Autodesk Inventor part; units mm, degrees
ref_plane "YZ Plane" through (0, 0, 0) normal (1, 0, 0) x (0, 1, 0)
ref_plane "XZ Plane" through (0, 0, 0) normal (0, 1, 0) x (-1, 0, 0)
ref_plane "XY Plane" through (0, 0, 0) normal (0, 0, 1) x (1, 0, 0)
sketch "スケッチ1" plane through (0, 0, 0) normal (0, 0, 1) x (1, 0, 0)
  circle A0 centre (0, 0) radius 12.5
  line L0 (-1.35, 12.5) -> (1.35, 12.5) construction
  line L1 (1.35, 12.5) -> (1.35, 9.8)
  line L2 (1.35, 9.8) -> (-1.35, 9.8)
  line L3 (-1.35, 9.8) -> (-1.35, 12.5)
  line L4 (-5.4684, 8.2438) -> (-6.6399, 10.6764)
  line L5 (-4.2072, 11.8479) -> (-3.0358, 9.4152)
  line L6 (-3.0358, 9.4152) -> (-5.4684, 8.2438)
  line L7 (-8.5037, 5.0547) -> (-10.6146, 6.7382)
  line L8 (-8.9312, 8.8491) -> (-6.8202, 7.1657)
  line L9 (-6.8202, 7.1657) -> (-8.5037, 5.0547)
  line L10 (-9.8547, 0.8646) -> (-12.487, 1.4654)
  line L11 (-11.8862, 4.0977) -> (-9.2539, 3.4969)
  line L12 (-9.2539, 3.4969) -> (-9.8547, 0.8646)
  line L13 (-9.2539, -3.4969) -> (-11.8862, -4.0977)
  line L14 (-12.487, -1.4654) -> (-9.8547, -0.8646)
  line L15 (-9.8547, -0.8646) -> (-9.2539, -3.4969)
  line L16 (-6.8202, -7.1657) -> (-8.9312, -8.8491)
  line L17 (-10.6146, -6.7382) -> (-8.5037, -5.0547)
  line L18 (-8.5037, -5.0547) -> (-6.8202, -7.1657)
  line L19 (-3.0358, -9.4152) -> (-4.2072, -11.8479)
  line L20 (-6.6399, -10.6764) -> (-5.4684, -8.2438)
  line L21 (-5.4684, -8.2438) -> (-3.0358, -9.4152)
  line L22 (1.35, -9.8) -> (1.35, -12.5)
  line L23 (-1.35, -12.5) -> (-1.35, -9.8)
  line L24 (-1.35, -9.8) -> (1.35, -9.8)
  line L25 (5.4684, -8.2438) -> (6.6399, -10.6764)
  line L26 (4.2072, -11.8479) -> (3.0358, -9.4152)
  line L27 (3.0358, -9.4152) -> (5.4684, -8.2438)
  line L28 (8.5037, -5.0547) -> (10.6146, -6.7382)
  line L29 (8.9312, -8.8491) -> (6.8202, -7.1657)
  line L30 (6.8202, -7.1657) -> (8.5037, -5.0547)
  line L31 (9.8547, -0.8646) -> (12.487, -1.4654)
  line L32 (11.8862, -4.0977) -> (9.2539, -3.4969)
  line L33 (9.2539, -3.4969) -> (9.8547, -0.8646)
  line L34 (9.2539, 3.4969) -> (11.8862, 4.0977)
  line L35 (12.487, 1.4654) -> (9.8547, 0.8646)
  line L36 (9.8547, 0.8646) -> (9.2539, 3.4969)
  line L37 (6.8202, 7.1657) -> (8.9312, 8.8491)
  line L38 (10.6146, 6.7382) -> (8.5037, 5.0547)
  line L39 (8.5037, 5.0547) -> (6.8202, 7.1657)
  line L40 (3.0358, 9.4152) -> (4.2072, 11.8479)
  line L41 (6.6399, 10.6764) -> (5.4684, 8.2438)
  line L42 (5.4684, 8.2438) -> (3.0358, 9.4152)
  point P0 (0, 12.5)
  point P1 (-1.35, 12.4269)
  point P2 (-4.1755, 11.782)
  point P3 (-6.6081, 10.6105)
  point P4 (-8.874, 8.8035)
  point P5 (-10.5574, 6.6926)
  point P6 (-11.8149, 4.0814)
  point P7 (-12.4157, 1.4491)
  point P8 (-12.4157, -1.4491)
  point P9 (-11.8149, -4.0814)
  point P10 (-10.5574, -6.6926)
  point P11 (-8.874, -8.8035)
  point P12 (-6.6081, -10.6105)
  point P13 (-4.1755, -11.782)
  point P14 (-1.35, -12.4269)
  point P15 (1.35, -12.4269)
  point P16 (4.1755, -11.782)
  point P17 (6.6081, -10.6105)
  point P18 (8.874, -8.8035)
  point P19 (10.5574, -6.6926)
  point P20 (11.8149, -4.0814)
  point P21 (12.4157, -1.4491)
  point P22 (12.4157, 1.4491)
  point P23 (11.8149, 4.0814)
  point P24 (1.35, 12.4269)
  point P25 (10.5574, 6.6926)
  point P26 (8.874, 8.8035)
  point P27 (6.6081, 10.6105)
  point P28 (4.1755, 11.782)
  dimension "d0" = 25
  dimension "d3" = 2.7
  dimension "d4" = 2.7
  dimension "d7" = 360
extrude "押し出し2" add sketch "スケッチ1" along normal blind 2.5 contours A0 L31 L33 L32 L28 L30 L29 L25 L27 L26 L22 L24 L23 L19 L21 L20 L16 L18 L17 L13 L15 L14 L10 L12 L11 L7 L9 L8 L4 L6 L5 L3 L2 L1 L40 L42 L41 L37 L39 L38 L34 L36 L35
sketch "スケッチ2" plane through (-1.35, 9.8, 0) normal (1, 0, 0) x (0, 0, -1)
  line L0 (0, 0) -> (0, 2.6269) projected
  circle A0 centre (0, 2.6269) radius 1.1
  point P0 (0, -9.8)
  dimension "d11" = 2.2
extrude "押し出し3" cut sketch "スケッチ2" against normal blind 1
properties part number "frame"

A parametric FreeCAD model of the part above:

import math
import FreeCAD as App
import Part
import Sketcher

V = App.Vector
Q = App.Units.Quantity

doc = App.newDocument("Part")
body = doc.addObject("PartDesign::Body", "Body")

# Sketch on XY plane
sketch1 = doc.addObject("Sketcher::SketchObject", "Sketch")
body.addObject(sketch1)
sketch1.AttachmentSupport = (doc.XY_Plane, [""])
sketch1.MapMode = "FlatFace"
sketch1.addGeometry([
    Part.ArcOfCircle(Part.Circle(V(0, 0, 0), V(0, 0, 1), 12.5), math.radians(-6.66), math.radians(6.66)),  # 0
    Part.LineSegment(V(12.4, 1.4, 0), V(9.9, 0.9, 0)),  # 1
    Part.LineSegment(V(9.9, 0.9, 0), V(9.3, 3.5, 0)),  # 2
    Part.LineSegment(V(9.3, 3.5, 0), V(11.8, 4.1, 0)),  # 3
    Part.ArcOfCircle(Part.Circle(V(0, 0, 0), V(0, 0, 1), 12.5), math.radians(19.06), math.radians(32.37)),  # 4
    Part.LineSegment(V(10.6, 6.7, 0), V(8.5, 5.1, 0)),  # 5
    Part.LineSegment(V(8.5, 5.1, 0), V(6.8, 7.2, 0)),  # 6
    Part.LineSegment(V(6.8, 7.2, 0), V(8.9, 8.8, 0)),  # 7
    Part.ArcOfCircle(Part.Circle(V(0, 0, 0), V(0, 0, 1), 12.5), math.radians(44.77), math.radians(58.09)),  # 8
    Part.LineSegment(V(6.6, 10.6, 0), V(5.5, 8.2, 0)),  # 9
    Part.LineSegment(V(5.5, 8.2, 0), V(3, 9.4, 0)),  # 10
    Part.LineSegment(V(3, 9.4, 0), V(4.2, 11.8, 0)),  # 11
    Part.ArcOfCircle(Part.Circle(V(0, 0, 0), V(0, 0, 1), 12.5), math.radians(70.49), math.radians(83.8)),  # 12
    Part.LineSegment(V(1.4, 12.4, 0), V(1.4, 9.8, 0)),  # 13
    Part.LineSegment(V(1.4, 9.8, 0), V(-1.4, 9.8, 0)),  # 14
    Part.LineSegment(V(-1.4, 9.8, 0), V(-1.4, 12.4, 0)),  # 15
    Part.ArcOfCircle(Part.Circle(V(0, 0, 0), V(0, 0, 1), 12.5), math.radians(96.2), math.radians(109.51)),  # 16
    Part.LineSegment(V(-4.2, 11.8, 0), V(-3, 9.4, 0)),  # 17
    Part.LineSegment(V(-3, 9.4, 0), V(-5.5, 8.2, 0)),  # 18
    Part.LineSegment(V(-5.5, 8.2, 0), V(-6.6, 10.6, 0)),  # 19
    Part.ArcOfCircle(Part.Circle(V(0, 0, 0), V(0, 0, 1), 12.5), math.radians(121.91), math.radians(135.23)),  # 20
    Part.LineSegment(V(-8.9, 8.8, 0), V(-6.8, 7.2, 0)),  # 21
    Part.LineSegment(V(-6.8, 7.2, 0), V(-8.5, 5.1, 0)),  # 22
    Part.LineSegment(V(-8.5, 5.1, 0), V(-10.6, 6.7, 0)),  # 23
    Part.ArcOfCircle(Part.Circle(V(0, 0, 0), V(0, 0, 1), 12.5), math.radians(147.63), math.radians(160.94)),  # 24
    Part.LineSegment(V(-11.8, 4.1, 0), V(-9.3, 3.5, 0)),  # 25
    Part.LineSegment(V(-9.3, 3.5, 0), V(-9.9, 0.9, 0)),  # 26
    Part.LineSegment(V(-9.9, 0.9, 0), V(-12.4, 1.4, 0)),  # 27
    Part.ArcOfCircle(Part.Circle(V(0, 0, 0), V(0, 0, 1), 12.5), math.radians(173.34), math.radians(186.66)),  # 28
    Part.LineSegment(V(-12.4, -1.4, 0), V(-9.9, -0.9, 0)),  # 29
    Part.LineSegment(V(-9.9, -0.9, 0), V(-9.3, -3.5, 0)),  # 30
    Part.LineSegment(V(-9.3, -3.5, 0), V(-11.8, -4.1, 0)),  # 31
    Part.ArcOfCircle(Part.Circle(V(0, 0, 0), V(0, 0, 1), 12.5), math.radians(-160.94), math.radians(-147.63)),  # 32
    Part.LineSegment(V(-10.6, -6.7, 0), V(-8.5, -5.1, 0)),  # 33
    Part.LineSegment(V(-8.5, -5.1, 0), V(-6.8, -7.2, 0)),  # 34
    Part.LineSegment(V(-6.8, -7.2, 0), V(-8.9, -8.8, 0)),  # 35
    Part.ArcOfCircle(Part.Circle(V(0, 0, 0), V(0, 0, 1), 12.5), math.radians(-135.23), math.radians(-121.91)),  # 36
    Part.LineSegment(V(-6.6, -10.6, 0), V(-5.5, -8.2, 0)),  # 37
    Part.LineSegment(V(-5.5, -8.2, 0), V(-3, -9.4, 0)),  # 38
    Part.LineSegment(V(-3, -9.4, 0), V(-4.2, -11.8, 0)),  # 39
    Part.ArcOfCircle(Part.Circle(V(0, 0, 0), V(0, 0, 1), 12.5), math.radians(-109.51), math.radians(-96.2)),  # 40
    Part.LineSegment(V(-1.4, -12.4, 0), V(-1.4, -9.8, 0)),  # 41
    Part.LineSegment(V(-1.4, -9.8, 0), V(1.4, -9.8, 0)),  # 42
    Part.LineSegment(V(1.4, -9.8, 0), V(1.4, -12.4, 0)),  # 43
    Part.ArcOfCircle(Part.Circle(V(0, 0, 0), V(0, 0, 1), 12.5), math.radians(-83.8), math.radians(-70.49)),  # 44
    Part.LineSegment(V(4.2, -11.8, 0), V(3, -9.4, 0)),  # 45
    Part.LineSegment(V(3, -9.4, 0), V(5.5, -8.2, 0)),  # 46
    Part.LineSegment(V(5.5, -8.2, 0), V(6.6, -10.6, 0)),  # 47
    Part.ArcOfCircle(Part.Circle(V(0, 0, 0), V(0, 0, 1), 12.5), math.radians(-58.09), math.radians(-44.77)),  # 48
    Part.LineSegment(V(8.9, -8.8, 0), V(6.8, -7.2, 0)),  # 49
    Part.LineSegment(V(6.8, -7.2, 0), V(8.5, -5.1, 0)),  # 50
    Part.LineSegment(V(8.5, -5.1, 0), V(10.6, -6.7, 0)),  # 51
    Part.ArcOfCircle(Part.Circle(V(0, 0, 0), V(0, 0, 1), 12.5), math.radians(-32.37), math.radians(-19.06)),  # 52
    Part.LineSegment(V(11.8, -4.1, 0), V(9.3, -3.5, 0)),  # 53
    Part.LineSegment(V(9.3, -3.5, 0), V(9.9, -0.9, 0)),  # 54
    Part.LineSegment(V(9.9, -0.9, 0), V(12.4, -1.4, 0)),  # 55
], False)
sketch1.addConstraint([
    Sketcher.Constraint("Coincident", 0, 2, 1, 1),
    Sketcher.Constraint("Coincident", 1, 2, 2, 1),
    Sketcher.Constraint("Coincident", 2, 2, 3, 1),
    Sketcher.Constraint("Coincident", 3, 2, 4, 1),
    Sketcher.Constraint("Coincident", 4, 2, 5, 1),
    Sketcher.Constraint("Coincident", 5, 2, 6, 1),
    Sketcher.Constraint("Coincident", 6, 2, 7, 1),
    Sketcher.Constraint("Coincident", 7, 2, 8, 1),
    Sketcher.Constraint("Coincident", 8, 2, 9, 1),
    Sketcher.Constraint("Coincident", 9, 2, 10, 1),
    Sketcher.Constraint("Coincident", 10, 2, 11, 1),
    Sketcher.Constraint("Coincident", 11, 2, 12, 1),
    Sketcher.Constraint("Coincident", 12, 2, 13, 1),
    Sketcher.Constraint("Coincident", 13, 2, 14, 1),
    Sketcher.Constraint("Coincident", 14, 2, 15, 1),
    Sketcher.Constraint("Coincident", 15, 2, 16, 1),
    Sketcher.Constraint("Coincident", 16, 2, 17, 1),
    Sketcher.Constraint("Coincident", 17, 2, 18, 1),
    Sketcher.Constraint("Coincident", 18, 2, 19, 1),
    Sketcher.Constraint("Coincident", 19, 2, 20, 1),
    Sketcher.Constraint("Coincident", 20, 2, 21, 1),
    Sketcher.Constraint("Coincident", 21, 2, 22, 1),
    Sketcher.Constraint("Coincident", 22, 2, 23, 1),
    Sketcher.Constraint("Coincident", 23, 2, 24, 1),
    Sketcher.Constraint("Coincident", 24, 2, 25, 1),
    Sketcher.Constraint("Coincident", 25, 2, 26, 1),
    Sketcher.Constraint("Coincident", 26, 2, 27, 1),
    Sketcher.Constraint("Coincident", 27, 2, 28, 1),
    Sketcher.Constraint("Coincident", 28, 2, 29, 1),
    Sketcher.Constraint("Coincident", 29, 2, 30, 1),
    Sketcher.Constraint("Coincident", 30, 2, 31, 1),
    Sketcher.Constraint("Coincident", 31, 2, 32, 1),
    Sketcher.Constraint("Coincident", 32, 2, 33, 1),
    Sketcher.Constraint("Coincident", 33, 2, 34, 1),
    Sketcher.Constraint("Coincident", 34, 2, 35, 1),
    Sketcher.Constraint("Coincident", 35, 2, 36, 1),
    Sketcher.Constraint("Coincident", 36, 2, 37, 1),
    Sketcher.Constraint("Coincident", 37, 2, 38, 1),
    Sketcher.Constraint("Coincident", 38, 2, 39, 1),
    Sketcher.Constraint("Coincident", 39, 2, 40, 1),
    Sketcher.Constraint("Coincident", 40, 2, 41, 1),
    Sketcher.Constraint("Coincident", 41, 2, 42, 1),
    Sketcher.Constraint("Coincident", 42, 2, 43, 1),
    Sketcher.Constraint("Coincident", 43, 2, 44, 1),
    Sketcher.Constraint("Coincident", 44, 2, 45, 1),
    Sketcher.Constraint("Coincident", 45, 2, 46, 1),
    Sketcher.Constraint("Coincident", 46, 2, 47, 1),
    Sketcher.Constraint("Coincident", 47, 2, 48, 1),
    Sketcher.Constraint("Coincident", 48, 2, 49, 1),
    Sketcher.Constraint("Coincident", 49, 2, 50, 1),
    Sketcher.Constraint("Coincident", 50, 2, 51, 1),
    Sketcher.Constraint("Coincident", 51, 2, 52, 1),
    Sketcher.Constraint("Coincident", 52, 2, 53, 1),
    Sketcher.Constraint("Coincident", 53, 2, 54, 1),
    Sketcher.Constraint("Coincident", 54, 2, 55, 1),
    Sketcher.Constraint("Coincident", 55, 2, 0, 1),
    Sketcher.Constraint("Vertical", 13),
    Sketcher.Constraint("Horizontal", 14),
    Sketcher.Constraint("Vertical", 15),
    Sketcher.Constraint("Vertical", 41),
    Sketcher.Constraint("Horizontal", 42),
    Sketcher.Constraint("Vertical", 43),
    Sketcher.Constraint("Coincident", 0, 3, -1, 1),
    Sketcher.Constraint("Coincident", 4, 3, -1, 1),
    Sketcher.Constraint("Coincident", 8, 3, -1, 1),
    Sketcher.Constraint("Coincident", 12, 3, -1, 1),
    Sketcher.Constraint("Coincident", 16, 3, -1, 1),
    Sketcher.Constraint("Coincident", 20, 3, -1, 1),
    Sketcher.Constraint("Coincident", 24, 3, -1, 1),
    Sketcher.Constraint("Coincident", 28, 3, -1, 1),
    Sketcher.Constraint("Coincident", 32, 3, -1, 1),
    Sketcher.Constraint("Coincident", 36, 3, -1, 1),
    Sketcher.Constraint("Coincident", 40, 3, -1, 1),
    Sketcher.Constraint("Coincident", 44, 3, -1, 1),
    Sketcher.Constraint("Coincident", 48, 3, -1, 1),
    Sketcher.Constraint("Coincident", 52, 3, -1, 1),
    Sketcher.Constraint("Equal", 0, 4),
    Sketcher.Constraint("Equal", 4, 8),
    Sketcher.Constraint("Equal", 8, 12),
    Sketcher.Constraint("Equal", 12, 16),
    Sketcher.Constraint("Equal", 16, 20),
    Sketcher.Constraint("Equal", 20, 24),
    Sketcher.Constraint("Equal", 24, 28),
    Sketcher.Constraint("Equal", 28, 32),
    Sketcher.Constraint("Equal", 32, 36),
    Sketcher.Constraint("Equal", 36, 40),
    Sketcher.Constraint("Equal", 40, 44),
    Sketcher.Constraint("Equal", 44, 48),
    Sketcher.Constraint("Equal", 48, 52),
    Sketcher.Constraint("Symmetric", 1, 2, 29, 2, -1, 1),
    Sketcher.Constraint("Symmetric", 2, 2, 30, 2, -1, 1),
    Sketcher.Constraint("Symmetric", 5, 2, 33, 2, -1, 1),
    Sketcher.Constraint("Symmetric", 6, 2, 34, 2, -1, 1),
    Sketcher.Constraint("Symmetric", 9, 2, 37, 2, -1, 1),
    Sketcher.Constraint("Symmetric", 10, 2, 38, 2, -1, 1),
    Sketcher.Constraint("Symmetric", 13, 2, 41, 2, -1, 1),
    Sketcher.Constraint("Symmetric", 17, 2, 45, 2, -1, 1),
    Sketcher.Constraint("Symmetric", 18, 2, 46, 2, -1, 1),
    Sketcher.Constraint("Symmetric", 21, 2, 49, 2, -1, 1),
    Sketcher.Constraint("Symmetric", 22, 2, 50, 2, -1, 1),
    Sketcher.Constraint("Symmetric", 25, 2, 53, 2, -1, 1),
    Sketcher.Constraint("Symmetric", 26, 2, 54, 2, -1, 1),
    Sketcher.Constraint("Symmetric", 10, 2, 17, 2, -2),
    Sketcher.Constraint("Symmetric", 9, 2, 18, 2, -2),
    Sketcher.Constraint("Symmetric", 6, 2, 21, 2, -2),
    Sketcher.Constraint("Symmetric", 5, 2, 22, 2, -2),
    Sketcher.Constraint("Symmetric", 2, 2, 25, 2, -2),
    Sketcher.Constraint("Symmetric", 1, 2, 26, 2, -2),
    Sketcher.Constraint("Perpendicular", 1, 2),
    Sketcher.Constraint("Perpendicular", 2, 3),
    Sketcher.Constraint("Perpendicular", 5, 6),
    Sketcher.Constraint("Perpendicular", 6, 7),
    Sketcher.Constraint("Perpendicular", 9, 10),
    Sketcher.Constraint("Perpendicular", 10, 11),
    Sketcher.Constraint("Perpendicular", 17, 18),
    Sketcher.Constraint("Perpendicular", 18, 19),
    Sketcher.Constraint("Perpendicular", 21, 22),
    Sketcher.Constraint("Perpendicular", 22, 23),
    Sketcher.Constraint("Perpendicular", 25, 26),
    Sketcher.Constraint("Perpendicular", 26, 27),
    Sketcher.Constraint("Parallel", 3, 29),
    Sketcher.Constraint("Perpendicular", 30, 31),
    Sketcher.Constraint("Parallel", 7, 33),
    Sketcher.Constraint("Perpendicular", 34, 35),
    Sketcher.Constraint("Parallel", 11, 37),
    Sketcher.Constraint("Perpendicular", 38, 39),
    Sketcher.Constraint("Parallel", 19, 45),
    Sketcher.Constraint("Perpendicular", 46, 47),
    Sketcher.Constraint("Parallel", 23, 49),
    Sketcher.Constraint("Perpendicular", 50, 51),
    Sketcher.Constraint("Parallel", 27, 53),
    Sketcher.Constraint("Perpendicular", 54, 55),
    Sketcher.Constraint("Horizontal", 12, 2, 15, 2),
    Sketcher.Constraint("Horizontal", 40, 2, 43, 2),
    Sketcher.Constraint("Equal", 1, 3),
    Sketcher.Constraint("Equal", 3, 5),
    Sketcher.Constraint("Equal", 2, 6),
    Sketcher.Constraint("Equal", 5, 7),
    Sketcher.Constraint("Equal", 7, 9),
    Sketcher.Constraint("Equal", 6, 10),
    Sketcher.Constraint("Equal", 9, 11),
    Sketcher.Constraint("Radius", 0, Q("12.5 mm")),
    Sketcher.Constraint("DistanceX", 14, 2, 14, 1, Q("2.7 mm")),
    Sketcher.Constraint("Distance", 2, Q("2.7 mm")),
    Sketcher.Constraint("DistanceY", -1, 1, 13, 2, Q("9.8 mm")),
    Sketcher.Constraint("Angle", 7, Q("38.5703 deg")),
    Sketcher.Constraint("Distance", 7, Q("2.627 mm")),
    Sketcher.Constraint("DistanceX", -1, 1, 2, 2, Q("9.254 mm")),
    Sketcher.Constraint("DistanceY", -1, 1, 11, 2, Q("11.782 mm")),
])
pad1 = doc.addObject("PartDesign::Pad", "Pad")
body.addObject(pad1)
pad1.Profile = sketch1
pad1.Length = 2.5

# Sketch on YZ plane
sketch2 = doc.addObject("Sketcher::SketchObject", "Sketch001")
body.addObject(sketch2)
sketch2.AttachmentSupport = (doc.YZ_Plane, [""])
sketch2.MapMode = "FlatFace"
sketch2.AttachmentOffset = App.Placement(V(0, 0, -1.35), App.Rotation())
sketch2.addGeometry(Part.Circle(V(12.4, 0, 0), V(0, 0, 1), 1.1), False)
sketch2.addConstraint([
    Sketcher.Constraint("PointOnObject", 0, 3, -1),
    Sketcher.Constraint("Diameter", 0, Q("2.2 mm")),
    Sketcher.Constraint("DistanceX", -1, 1, 0, 3, Q("12.427 mm")),
])
pocket1 = doc.addObject("PartDesign::Pocket", "Pocket")
body.addObject(pocket1)
pocket1.Profile = sketch2
pocket1.Length = 1

doc.recompute()
